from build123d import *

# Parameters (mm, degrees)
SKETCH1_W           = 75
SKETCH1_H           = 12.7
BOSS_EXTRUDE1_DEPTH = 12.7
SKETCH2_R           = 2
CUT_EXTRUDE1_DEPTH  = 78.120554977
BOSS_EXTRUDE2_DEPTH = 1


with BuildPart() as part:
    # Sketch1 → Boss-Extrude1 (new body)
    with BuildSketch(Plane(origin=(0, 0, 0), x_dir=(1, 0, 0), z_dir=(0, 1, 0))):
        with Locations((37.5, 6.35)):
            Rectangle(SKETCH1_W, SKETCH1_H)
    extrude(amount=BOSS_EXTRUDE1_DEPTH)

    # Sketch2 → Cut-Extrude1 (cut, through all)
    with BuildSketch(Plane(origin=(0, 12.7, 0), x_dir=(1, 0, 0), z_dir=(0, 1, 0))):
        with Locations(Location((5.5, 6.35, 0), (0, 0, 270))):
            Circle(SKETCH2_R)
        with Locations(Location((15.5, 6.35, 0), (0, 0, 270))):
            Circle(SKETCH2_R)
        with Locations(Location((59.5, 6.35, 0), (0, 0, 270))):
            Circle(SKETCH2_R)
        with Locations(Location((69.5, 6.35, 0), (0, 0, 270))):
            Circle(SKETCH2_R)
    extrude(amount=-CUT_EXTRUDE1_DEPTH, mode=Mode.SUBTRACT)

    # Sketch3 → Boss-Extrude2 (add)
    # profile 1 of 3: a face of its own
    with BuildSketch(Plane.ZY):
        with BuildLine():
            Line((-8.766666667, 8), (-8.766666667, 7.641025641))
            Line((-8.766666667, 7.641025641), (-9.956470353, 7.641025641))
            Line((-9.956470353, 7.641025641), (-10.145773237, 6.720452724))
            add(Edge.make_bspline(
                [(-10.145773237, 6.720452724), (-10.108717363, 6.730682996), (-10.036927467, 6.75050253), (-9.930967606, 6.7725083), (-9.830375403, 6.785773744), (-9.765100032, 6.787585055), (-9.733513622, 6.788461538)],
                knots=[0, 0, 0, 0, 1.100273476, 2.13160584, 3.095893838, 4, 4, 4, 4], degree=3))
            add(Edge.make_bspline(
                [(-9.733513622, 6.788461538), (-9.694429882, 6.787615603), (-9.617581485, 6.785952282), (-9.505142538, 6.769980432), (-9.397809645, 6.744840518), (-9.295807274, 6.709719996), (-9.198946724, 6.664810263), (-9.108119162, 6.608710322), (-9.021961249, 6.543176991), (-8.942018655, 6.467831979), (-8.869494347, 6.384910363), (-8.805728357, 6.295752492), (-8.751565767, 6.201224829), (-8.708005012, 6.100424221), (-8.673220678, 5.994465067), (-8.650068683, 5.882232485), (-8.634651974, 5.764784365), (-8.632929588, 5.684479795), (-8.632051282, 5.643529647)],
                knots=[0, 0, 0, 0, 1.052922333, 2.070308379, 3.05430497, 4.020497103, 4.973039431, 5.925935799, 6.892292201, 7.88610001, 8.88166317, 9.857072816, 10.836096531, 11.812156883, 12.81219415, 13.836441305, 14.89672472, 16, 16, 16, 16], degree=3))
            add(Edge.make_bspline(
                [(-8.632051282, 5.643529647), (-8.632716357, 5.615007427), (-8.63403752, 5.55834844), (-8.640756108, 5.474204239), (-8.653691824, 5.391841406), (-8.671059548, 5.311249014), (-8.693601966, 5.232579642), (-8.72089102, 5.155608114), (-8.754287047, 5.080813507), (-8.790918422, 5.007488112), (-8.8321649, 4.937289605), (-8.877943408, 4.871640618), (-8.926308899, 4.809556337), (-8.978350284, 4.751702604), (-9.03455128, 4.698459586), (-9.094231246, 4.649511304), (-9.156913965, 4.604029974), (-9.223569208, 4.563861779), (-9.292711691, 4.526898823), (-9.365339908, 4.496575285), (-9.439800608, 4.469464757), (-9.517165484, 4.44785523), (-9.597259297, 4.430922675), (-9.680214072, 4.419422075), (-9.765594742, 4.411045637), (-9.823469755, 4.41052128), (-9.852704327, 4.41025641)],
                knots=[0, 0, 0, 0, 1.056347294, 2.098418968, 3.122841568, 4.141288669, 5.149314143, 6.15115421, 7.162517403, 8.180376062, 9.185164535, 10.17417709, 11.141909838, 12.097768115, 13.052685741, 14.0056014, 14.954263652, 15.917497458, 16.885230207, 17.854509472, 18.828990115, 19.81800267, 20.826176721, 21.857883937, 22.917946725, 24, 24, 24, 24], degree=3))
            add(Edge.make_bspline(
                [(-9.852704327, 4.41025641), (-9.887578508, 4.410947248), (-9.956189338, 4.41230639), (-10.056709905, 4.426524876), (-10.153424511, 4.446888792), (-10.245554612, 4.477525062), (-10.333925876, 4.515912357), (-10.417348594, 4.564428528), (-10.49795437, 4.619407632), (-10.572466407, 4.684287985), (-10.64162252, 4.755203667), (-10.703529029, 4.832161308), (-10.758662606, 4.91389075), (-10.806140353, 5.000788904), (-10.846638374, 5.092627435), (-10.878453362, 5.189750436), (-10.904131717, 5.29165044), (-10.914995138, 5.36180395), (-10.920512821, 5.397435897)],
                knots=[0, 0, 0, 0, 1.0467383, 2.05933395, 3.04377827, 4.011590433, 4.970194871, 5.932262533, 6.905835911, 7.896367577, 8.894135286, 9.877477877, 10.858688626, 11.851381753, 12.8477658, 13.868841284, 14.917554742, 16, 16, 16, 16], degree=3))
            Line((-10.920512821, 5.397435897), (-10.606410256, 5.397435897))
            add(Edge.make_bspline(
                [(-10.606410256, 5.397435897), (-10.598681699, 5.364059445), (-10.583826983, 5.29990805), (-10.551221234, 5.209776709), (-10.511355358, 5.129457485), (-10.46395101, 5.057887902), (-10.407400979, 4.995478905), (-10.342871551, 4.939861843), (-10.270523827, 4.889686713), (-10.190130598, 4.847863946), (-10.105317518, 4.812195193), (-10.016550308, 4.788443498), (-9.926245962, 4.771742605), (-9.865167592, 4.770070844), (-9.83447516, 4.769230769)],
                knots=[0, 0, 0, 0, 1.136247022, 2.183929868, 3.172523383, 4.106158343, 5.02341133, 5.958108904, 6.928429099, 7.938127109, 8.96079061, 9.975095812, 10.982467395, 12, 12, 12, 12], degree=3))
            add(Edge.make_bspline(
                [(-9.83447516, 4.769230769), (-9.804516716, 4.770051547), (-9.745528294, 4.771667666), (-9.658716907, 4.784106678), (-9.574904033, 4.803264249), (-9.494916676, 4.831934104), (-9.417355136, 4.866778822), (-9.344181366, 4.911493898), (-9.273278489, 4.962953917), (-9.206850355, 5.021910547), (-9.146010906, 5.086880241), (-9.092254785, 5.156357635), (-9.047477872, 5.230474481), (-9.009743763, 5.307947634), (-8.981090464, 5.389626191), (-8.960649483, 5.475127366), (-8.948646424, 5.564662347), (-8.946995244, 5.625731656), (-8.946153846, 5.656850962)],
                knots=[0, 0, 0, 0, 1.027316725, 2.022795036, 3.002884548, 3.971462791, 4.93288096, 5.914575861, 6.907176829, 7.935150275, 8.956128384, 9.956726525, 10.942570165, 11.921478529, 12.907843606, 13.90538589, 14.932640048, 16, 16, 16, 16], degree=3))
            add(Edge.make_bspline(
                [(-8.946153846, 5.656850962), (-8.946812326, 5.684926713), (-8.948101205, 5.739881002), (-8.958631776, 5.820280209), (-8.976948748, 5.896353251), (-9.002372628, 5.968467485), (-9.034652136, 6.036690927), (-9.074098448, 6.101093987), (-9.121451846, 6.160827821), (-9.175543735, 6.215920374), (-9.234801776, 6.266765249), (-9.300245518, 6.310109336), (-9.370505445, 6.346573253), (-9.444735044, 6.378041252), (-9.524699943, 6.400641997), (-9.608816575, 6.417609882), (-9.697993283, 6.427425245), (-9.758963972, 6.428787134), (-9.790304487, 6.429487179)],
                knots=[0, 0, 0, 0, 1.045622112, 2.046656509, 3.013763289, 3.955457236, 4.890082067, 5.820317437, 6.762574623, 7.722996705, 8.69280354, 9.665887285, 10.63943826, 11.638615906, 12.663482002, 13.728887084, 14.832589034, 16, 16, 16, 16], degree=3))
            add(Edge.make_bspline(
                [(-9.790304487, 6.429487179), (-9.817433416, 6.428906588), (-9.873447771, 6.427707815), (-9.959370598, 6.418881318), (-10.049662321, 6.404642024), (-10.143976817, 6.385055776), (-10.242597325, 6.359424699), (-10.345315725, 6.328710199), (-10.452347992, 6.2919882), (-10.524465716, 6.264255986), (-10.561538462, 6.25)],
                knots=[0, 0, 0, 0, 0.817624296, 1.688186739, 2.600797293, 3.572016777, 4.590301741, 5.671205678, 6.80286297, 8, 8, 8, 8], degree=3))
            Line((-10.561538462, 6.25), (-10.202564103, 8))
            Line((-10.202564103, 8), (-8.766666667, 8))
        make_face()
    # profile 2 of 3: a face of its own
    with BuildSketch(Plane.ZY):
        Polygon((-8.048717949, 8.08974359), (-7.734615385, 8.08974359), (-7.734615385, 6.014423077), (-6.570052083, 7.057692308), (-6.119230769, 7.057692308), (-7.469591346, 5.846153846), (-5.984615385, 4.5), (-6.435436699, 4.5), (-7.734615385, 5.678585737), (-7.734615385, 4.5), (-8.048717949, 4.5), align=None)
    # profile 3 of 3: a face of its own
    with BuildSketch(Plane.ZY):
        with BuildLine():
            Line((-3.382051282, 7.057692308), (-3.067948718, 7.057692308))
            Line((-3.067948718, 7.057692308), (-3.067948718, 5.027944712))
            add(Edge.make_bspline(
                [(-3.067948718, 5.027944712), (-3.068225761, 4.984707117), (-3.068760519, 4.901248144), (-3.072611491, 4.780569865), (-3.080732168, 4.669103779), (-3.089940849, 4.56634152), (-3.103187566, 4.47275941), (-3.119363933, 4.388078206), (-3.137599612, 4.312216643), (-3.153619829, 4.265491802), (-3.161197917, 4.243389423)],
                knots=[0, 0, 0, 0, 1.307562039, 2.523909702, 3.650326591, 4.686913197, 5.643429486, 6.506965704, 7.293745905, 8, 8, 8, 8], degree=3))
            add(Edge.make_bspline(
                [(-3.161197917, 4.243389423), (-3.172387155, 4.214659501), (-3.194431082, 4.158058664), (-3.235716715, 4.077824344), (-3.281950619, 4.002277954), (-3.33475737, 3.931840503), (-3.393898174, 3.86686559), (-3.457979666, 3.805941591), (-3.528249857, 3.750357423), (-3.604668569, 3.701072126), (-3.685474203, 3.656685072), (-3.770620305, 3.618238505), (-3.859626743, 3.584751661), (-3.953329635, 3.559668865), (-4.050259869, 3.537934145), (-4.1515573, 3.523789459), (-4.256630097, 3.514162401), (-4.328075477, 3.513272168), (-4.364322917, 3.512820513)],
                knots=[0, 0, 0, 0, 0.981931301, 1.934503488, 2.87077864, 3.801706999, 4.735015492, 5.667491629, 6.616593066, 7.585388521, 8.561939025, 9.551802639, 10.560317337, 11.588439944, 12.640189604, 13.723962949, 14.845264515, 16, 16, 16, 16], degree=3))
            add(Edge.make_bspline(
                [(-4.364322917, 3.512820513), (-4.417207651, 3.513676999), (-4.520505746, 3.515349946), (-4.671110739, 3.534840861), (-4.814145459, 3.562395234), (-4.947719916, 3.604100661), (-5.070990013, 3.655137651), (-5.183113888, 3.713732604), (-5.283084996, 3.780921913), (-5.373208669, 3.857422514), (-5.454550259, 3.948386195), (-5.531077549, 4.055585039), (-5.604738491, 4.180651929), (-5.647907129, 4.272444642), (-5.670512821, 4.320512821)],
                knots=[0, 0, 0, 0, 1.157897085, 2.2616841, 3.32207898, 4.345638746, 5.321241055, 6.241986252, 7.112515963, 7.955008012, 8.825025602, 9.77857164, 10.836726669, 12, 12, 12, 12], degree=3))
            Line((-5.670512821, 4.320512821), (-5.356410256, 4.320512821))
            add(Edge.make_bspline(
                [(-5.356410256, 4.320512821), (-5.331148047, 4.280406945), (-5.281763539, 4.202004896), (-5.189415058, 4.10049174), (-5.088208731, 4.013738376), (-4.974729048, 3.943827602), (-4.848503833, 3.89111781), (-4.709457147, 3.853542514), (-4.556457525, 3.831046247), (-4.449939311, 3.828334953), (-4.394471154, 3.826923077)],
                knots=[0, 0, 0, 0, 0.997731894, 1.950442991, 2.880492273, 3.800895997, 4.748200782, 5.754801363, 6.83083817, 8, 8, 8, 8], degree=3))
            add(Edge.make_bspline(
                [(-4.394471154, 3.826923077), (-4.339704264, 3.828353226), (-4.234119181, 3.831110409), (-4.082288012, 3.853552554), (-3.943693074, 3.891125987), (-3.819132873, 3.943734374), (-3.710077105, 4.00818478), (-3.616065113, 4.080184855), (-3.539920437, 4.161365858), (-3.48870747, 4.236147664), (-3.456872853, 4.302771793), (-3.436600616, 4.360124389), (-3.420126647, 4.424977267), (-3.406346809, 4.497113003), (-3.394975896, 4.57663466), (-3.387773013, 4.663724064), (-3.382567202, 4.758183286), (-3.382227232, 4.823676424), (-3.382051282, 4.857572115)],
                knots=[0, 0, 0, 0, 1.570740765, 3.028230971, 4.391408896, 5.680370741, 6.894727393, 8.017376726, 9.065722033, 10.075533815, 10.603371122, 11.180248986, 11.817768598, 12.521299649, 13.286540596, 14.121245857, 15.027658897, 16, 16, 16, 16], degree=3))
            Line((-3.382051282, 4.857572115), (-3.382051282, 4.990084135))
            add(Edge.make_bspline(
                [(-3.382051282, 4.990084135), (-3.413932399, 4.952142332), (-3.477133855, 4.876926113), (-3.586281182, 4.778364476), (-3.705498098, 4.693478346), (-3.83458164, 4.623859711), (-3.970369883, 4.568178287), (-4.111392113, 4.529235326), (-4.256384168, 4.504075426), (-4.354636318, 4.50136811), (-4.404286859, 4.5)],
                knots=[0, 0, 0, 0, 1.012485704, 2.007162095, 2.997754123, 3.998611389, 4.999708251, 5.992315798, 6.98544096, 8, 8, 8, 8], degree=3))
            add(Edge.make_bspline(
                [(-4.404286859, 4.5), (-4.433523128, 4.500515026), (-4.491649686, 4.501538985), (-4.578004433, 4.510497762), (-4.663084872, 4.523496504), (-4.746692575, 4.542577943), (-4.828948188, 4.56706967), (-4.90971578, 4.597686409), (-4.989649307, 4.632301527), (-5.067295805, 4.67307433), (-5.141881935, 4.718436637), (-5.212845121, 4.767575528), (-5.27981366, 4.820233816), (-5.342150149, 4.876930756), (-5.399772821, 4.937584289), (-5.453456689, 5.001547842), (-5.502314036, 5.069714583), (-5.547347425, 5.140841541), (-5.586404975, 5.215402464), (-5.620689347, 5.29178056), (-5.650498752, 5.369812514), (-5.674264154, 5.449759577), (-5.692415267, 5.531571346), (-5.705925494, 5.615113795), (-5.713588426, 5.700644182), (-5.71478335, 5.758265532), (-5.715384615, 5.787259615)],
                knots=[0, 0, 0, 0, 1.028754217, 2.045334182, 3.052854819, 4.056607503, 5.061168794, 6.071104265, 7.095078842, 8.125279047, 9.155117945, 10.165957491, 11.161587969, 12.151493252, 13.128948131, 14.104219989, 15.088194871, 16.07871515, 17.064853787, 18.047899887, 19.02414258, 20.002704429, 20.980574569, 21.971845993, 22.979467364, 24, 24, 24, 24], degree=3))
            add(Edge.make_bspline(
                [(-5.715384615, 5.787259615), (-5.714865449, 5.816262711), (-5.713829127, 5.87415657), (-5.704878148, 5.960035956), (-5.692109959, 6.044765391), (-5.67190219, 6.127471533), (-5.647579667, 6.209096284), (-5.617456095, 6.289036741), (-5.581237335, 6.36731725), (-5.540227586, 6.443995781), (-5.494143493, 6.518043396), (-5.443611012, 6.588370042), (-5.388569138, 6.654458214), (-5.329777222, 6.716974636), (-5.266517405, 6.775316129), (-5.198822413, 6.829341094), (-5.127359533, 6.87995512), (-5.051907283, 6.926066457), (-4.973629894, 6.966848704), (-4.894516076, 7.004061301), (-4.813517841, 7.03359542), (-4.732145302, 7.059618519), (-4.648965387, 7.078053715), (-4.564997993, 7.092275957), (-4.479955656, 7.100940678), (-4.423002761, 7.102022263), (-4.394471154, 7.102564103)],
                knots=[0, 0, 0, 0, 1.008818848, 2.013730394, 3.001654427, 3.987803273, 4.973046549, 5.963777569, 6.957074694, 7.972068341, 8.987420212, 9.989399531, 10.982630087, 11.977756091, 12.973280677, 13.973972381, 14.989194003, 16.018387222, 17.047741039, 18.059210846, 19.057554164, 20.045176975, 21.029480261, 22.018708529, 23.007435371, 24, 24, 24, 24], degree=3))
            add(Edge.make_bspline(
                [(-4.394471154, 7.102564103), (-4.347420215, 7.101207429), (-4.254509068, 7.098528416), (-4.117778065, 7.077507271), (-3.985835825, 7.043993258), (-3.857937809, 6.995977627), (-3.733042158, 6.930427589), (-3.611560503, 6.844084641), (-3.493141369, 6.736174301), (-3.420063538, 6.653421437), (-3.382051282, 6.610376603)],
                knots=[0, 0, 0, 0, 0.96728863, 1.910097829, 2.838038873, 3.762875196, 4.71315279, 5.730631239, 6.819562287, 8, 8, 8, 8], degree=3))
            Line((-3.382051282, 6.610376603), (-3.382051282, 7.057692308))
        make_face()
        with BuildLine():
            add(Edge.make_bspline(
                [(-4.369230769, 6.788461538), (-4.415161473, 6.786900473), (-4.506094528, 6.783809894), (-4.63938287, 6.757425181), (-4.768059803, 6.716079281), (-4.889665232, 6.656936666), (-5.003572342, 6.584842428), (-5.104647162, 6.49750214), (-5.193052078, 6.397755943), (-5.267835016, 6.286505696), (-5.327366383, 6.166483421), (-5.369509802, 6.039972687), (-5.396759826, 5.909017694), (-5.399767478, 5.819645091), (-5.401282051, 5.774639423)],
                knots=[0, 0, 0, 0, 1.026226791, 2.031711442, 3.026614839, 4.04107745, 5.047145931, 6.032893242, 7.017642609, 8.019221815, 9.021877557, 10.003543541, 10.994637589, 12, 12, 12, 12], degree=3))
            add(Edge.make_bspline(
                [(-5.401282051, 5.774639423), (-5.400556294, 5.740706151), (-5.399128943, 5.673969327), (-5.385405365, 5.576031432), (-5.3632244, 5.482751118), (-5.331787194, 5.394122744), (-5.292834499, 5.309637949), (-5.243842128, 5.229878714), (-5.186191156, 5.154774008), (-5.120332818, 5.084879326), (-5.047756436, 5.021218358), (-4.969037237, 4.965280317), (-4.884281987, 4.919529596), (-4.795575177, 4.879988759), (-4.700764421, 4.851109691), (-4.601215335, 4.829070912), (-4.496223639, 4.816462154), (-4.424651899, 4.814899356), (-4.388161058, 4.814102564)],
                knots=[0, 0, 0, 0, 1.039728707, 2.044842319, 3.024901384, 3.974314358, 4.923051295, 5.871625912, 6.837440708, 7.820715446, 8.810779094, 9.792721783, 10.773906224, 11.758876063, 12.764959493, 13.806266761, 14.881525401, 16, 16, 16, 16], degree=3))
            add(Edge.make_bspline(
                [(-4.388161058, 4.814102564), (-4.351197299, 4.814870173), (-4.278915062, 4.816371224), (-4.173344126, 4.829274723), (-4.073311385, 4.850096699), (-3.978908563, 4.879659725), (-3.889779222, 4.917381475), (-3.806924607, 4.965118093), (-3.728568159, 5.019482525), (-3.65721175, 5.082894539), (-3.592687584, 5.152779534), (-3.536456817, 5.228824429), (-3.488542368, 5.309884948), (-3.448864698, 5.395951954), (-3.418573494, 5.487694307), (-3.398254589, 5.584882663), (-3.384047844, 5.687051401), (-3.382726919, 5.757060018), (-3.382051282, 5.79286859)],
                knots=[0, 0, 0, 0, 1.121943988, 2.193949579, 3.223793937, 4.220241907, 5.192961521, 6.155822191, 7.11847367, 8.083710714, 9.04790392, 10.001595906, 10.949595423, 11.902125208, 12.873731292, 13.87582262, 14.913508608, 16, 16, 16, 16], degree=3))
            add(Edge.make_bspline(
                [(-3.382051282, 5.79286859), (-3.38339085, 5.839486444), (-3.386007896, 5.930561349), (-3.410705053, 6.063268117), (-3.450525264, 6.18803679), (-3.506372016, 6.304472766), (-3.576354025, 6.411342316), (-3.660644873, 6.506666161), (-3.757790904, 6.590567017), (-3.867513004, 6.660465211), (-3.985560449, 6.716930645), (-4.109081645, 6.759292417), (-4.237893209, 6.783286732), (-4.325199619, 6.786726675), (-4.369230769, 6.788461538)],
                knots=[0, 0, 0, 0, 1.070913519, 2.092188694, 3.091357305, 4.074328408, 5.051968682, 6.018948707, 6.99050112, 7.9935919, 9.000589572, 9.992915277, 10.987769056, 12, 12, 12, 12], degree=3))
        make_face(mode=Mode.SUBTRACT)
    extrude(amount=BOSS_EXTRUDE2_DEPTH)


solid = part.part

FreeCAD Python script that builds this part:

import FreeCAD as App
import Part
import Sketcher
Q = App.Units.Quantity

doc = App.newDocument("Part")
body = doc.addObject("PartDesign::Body", "Body")

# Sketch on XZ plane
sketch1 = doc.addObject("Sketcher::SketchObject", "Sketch")
body.addObject(sketch1)
sketch1.AttachmentSupport = (doc.XZ_Plane, [""])
sketch1.MapMode = "FlatFace"
sketch1.addGeometry(Part.LineSegment(App.Vector(0, -13, 0), App.Vector(0, 0, 0)), False)
sketch1.addGeometry(Part.LineSegment(App.Vector(0, 0, 0), App.Vector(75, 0, 0)), False)
sketch1.addGeometry(Part.LineSegment(App.Vector(75, 0, 0), App.Vector(75, -13, 0)), False)
sketch1.addGeometry(Part.LineSegment(App.Vector(75, -13, 0), App.Vector(0, -13, 0)), False)
sketch1.addConstraint(Sketcher.Constraint("Coincident", 0, 2, 1, 1))
sketch1.addConstraint(Sketcher.Constraint("Coincident", 1, 2, 2, 1))
sketch1.addConstraint(Sketcher.Constraint("Coincident", 2, 2, 3, 1))
sketch1.addConstraint(Sketcher.Constraint("Coincident", 3, 2, 0, 1))
sketch1.addConstraint(Sketcher.Constraint("Vertical", 0))
sketch1.addConstraint(Sketcher.Constraint("Horizontal", 1))
sketch1.addConstraint(Sketcher.Constraint("Vertical", 2))
sketch1.addConstraint(Sketcher.Constraint("Horizontal", 3))
sketch1.addConstraint(Sketcher.Constraint("Coincident", 0, 2, -1, 1))
sketch1.addConstraint(Sketcher.Constraint("DistanceX", 1, 1, 1, 2, Q("75 mm")))
sketch1.addConstraint(Sketcher.Constraint("DistanceY", 0, 1, 0, 2, Q("12.7 mm")))
pad1 = doc.addObject("PartDesign::Pad", "Pad")
body.addObject(pad1)
pad1.Profile = sketch1
pad1.Length = 12.7
pad1.Reversed = True

# Sketch on XZ plane
sketch2 = doc.addObject("Sketcher::SketchObject", "Sketch001")
body.addObject(sketch2)
sketch2.AttachmentSupport = (doc.XZ_Plane, [""])
sketch2.MapMode = "FlatFace"
sketch2.AttachmentOffset = App.Placement(App.Vector(0, 0, -12.7), App.Rotation())
sketch2.addGeometry(Part.Circle(App.Vector(5.5, -6.3, 0), App.Vector(0, 0, 1), 2), False)
sketch2.addGeometry(Part.Circle(App.Vector(15.5, -6.3, 0), App.Vector(0, 0, 1), 2), False)
sketch2.addGeometry(Part.Circle(App.Vector(59.5, -6.3, 0), App.Vector(0, 0, 1), 2), False)
sketch2.addGeometry(Part.Circle(App.Vector(69.5, -6.3, 0), App.Vector(0, 0, 1), 2), False)
sketch2.addConstraint(Sketcher.Constraint("Equal", 0, 1))
sketch2.addConstraint(Sketcher.Constraint("Equal", 1, 2))
sketch2.addConstraint(Sketcher.Constraint("Equal", 2, 3))
sketch2.addConstraint(Sketcher.Constraint("Horizontal", 0, 3, 1, 3))
sketch2.addConstraint(Sketcher.Constraint("Horizontal", 1, 3, 2, 3))
sketch2.addConstraint(Sketcher.Constraint("Horizontal", 2, 3, 3, 3))
sketch2.addConstraint(Sketcher.Constraint("Diameter", 0, Q("4 mm")))
sketch2.addConstraint(Sketcher.Constraint("DistanceX", 0, 3, 1, 3, Q("10 mm")))
sketch2.addConstraint(Sketcher.Constraint("DistanceX", 1, 3, 2, 3, Q("44 mm")))
sketch2.addConstraint(Sketcher.Constraint("DistanceX", 2, 3, 3, 3, Q("10 mm")))
sketch2.addConstraint(Sketcher.Constraint("DistanceX", -1, 1, 0, 3, Q("5.5 mm")))
sketch2.addConstraint(Sketcher.Constraint("DistanceY", 0, 3, -1, 1, Q("6.35 mm")))
pocket1 = doc.addObject("PartDesign::Pocket", "Pocket")
body.addObject(pocket1)
pocket1.Profile = sketch2
pocket1.Type = "ThroughAll"
pocket1.Reversed = True

# Sketch on YZ plane
sketch3 = doc.addObject("Sketcher::SketchObject", "Sketch002")
body.addObject(sketch3)
sketch3.AttachmentSupport = (doc.YZ_Plane, [""])
sketch3.MapMode = "FlatFace"
sketch3.addGeometry(Part.LineSegment(App.Vector(7.641026, -8.766667, 0), App.Vector(8, -8.766667, 0)), False)
sketch3.addGeometry(Part.LineSegment(App.Vector(8, -8.766667, 0), App.Vector(8, -10.202564, 0)), False)
sketch3.addGeometry(Part.LineSegment(App.Vector(8, -10.202564, 0), App.Vector(6.25, -10.561538, 0)), False)
sketch3.addGeometry(Part.BSplineCurve([App.Vector(6.429487, -9.790304, 0), App.Vector(6.428907, -9.817433, 0), App.Vector(6.427708, -9.873448, 0), App.Vector(6.418881, -9.959371, 0), App.Vector(6.404642, -10.049662, 0), App.Vector(6.385056, -10.143977, 0), App.Vector(6.359425, -10.242597, 0), App.Vector(6.32871, -10.345316, 0), App.Vector(6.291988, -10.452348, 0), App.Vector(6.264256, -10.524466, 0), App.Vector(6.25, -10.561538, 0)], [4, 1, 1, 1, 1, 1, 1, 1, 4], [0, 0.817624296, 1.688186739, 2.600797293, 3.572016777, 4.590301741, 5.671205678, 6.80286297, 8], False, 3, [1, 1, 1, 1, 1, 1, 1, 1, 1, 1, 1], False), False)
sketch3.addGeometry(Part.BSplineCurve([App.Vector(5.656851, -8.946154, 0), App.Vector(5.684927, -8.946812, 0), App.Vector(5.739881, -8.948101, 0), App.Vector(5.82028, -8.958632, 0), App.Vector(5.896353, -8.976949, 0), App.Vector(5.968467, -9.002373, 0), App.Vector(6.036691, -9.034652, 0), App.Vector(6.101094, -9.074098, 0), App.Vector(6.160828, -9.121452, 0), App.Vector(6.21592, -9.175544, 0), App.Vector(6.266765, -9.234802, 0), App.Vector(6.310109, -9.300246, 0), App.Vector(6.346573, -9.370505, 0), App.Vector(6.378041, -9.444735, 0), App.Vector(6.400642, -9.5247, 0), App.Vector(6.41761, -9.608817, 0), App.Vector(6.427425, -9.697993, 0), App.Vector(6.428787, -9.758964, 0), App.Vector(6.429487, -9.790304, 0)], [4, 1, 1, 1, 1, 1, 1, 1, 1, 1, 1, 1, 1, 1, 1, 1, 4], [0, 1.045622112, 2.046656509, 3.013763289, 3.955457236, 4.890082067, 5.820317437, 6.762574623, 7.722996705, 8.69280354, 9.665887285, 10.63943826, 11.638615906, 12.663482002, 13.728887084, 14.832589034, 16], False, 3, [1, 1, 1, 1, 1, 1, 1, 1, 1, 1, 1, 1, 1, 1, 1, 1, 1, 1, 1], False), False)
sketch3.addGeometry(Part.BSplineCurve([App.Vector(4.769231, -9.834475, 0), App.Vector(4.770052, -9.804517, 0), App.Vector(4.771668, -9.745528, 0), App.Vector(4.784107, -9.658717, 0), App.Vector(4.803264, -9.574904, 0), App.Vector(4.831934, -9.494917, 0), App.Vector(4.866779, -9.417355, 0), App.Vector(4.911494, -9.344181, 0), App.Vector(4.962954, -9.273278, 0), App.Vector(5.021911, -9.20685, 0), App.Vector(5.08688, -9.146011, 0), App.Vector(5.156358, -9.092255, 0), App.Vector(5.230474, -9.047478, 0), App.Vector(5.307948, -9.009744, 0), App.Vector(5.389626, -8.98109, 0), App.Vector(5.475127, -8.960649, 0), App.Vector(5.564662, -8.948646, 0), App.Vector(5.625732, -8.946995, 0), App.Vector(5.656851, -8.946154, 0)], [4, 1, 1, 1, 1, 1, 1, 1, 1, 1, 1, 1, 1, 1, 1, 1, 4], [0, 1.027316725, 2.022795036, 3.002884548, 3.971462791, 4.93288096, 5.914575861, 6.907176829, 7.935150275, 8.956128384, 9.956726525, 10.942570165, 11.921478529, 12.907843606, 13.90538589, 14.932640048, 16], False, 3, [1, 1, 1, 1, 1, 1, 1, 1, 1, 1, 1, 1, 1, 1, 1, 1, 1, 1, 1], False), False)
sketch3.addGeometry(Part.BSplineCurve([App.Vector(5.397436, -10.60641, 0), App.Vector(5.364059, -10.598682, 0), App.Vector(5.299908, -10.583827, 0), App.Vector(5.209777, -10.551221, 0), App.Vector(5.129457, -10.511355, 0), App.Vector(5.057888, -10.463951, 0), App.Vector(4.995479, -10.407401, 0), App.Vector(4.939862, -10.342872, 0), App.Vector(4.889687, -10.270524, 0), App.Vector(4.847864, -10.190131, 0), App.Vector(4.812195, -10.105318, 0), App.Vector(4.788443, -10.01655, 0), App.Vector(4.771743, -9.926246, 0), App.Vector(4.770071, -9.865168, 0), App.Vector(4.769231, -9.834475, 0)], [4, 1, 1, 1, 1, 1, 1, 1, 1, 1, 1, 1, 4], [0, 1.136247022, 2.183929868, 3.172523383, 4.106158343, 5.02341133, 5.958108904, 6.928429099, 7.938127109, 8.96079061, 9.975095812, 10.982467395, 12], False, 3, [1, 1, 1, 1, 1, 1, 1, 1, 1, 1, 1, 1, 1, 1, 1], False), False)
sketch3.addGeometry(Part.LineSegment(App.Vector(5.397436, -10.60641, 0), App.Vector(5.397436, -10.920513, 0)), False)
sketch3.addGeometry(Part.BSplineCurve([App.Vector(4.410256, -9.852704, 0), App.Vector(4.410947, -9.887579, 0), App.Vector(4.412306, -9.956189, 0), App.Vector(4.426525, -10.05671, 0), App.Vector(4.446889, -10.153425, 0), App.Vector(4.477525, -10.245555, 0), App.Vector(4.515912, -10.333926, 0), App.Vector(4.564429, -10.417349, 0), App.Vector(4.619408, -10.497954, 0), App.Vector(4.684288, -10.572466, 0), App.Vector(4.755204, -10.641623, 0), App.Vector(4.832161, -10.703529, 0), App.Vector(4.913891, -10.758663, 0), App.Vector(5.000789, -10.80614, 0), App.Vector(5.092627, -10.846638, 0), App.Vector(5.18975, -10.878453, 0), App.Vector(5.29165, -10.904132, 0), App.Vector(5.361804, -10.914995, 0), App.Vector(5.397436, -10.920513, 0)], [4, 1, 1, 1, 1, 1, 1, 1, 1, 1, 1, 1, 1, 1, 1, 1, 4], [0, 1.0467383, 2.05933395, 3.04377827, 4.011590433, 4.970194871, 5.932262533, 6.905835911, 7.896367577, 8.894135286, 9.877477877, 10.858688626, 11.851381753, 12.8477658, 13.868841284, 14.917554742, 16], False, 3, [1, 1, 1, 1, 1, 1, 1, 1, 1, 1, 1, 1, 1, 1, 1, 1, 1, 1, 1], False), False)
sketch3.addGeometry(Part.BSplineCurve([App.Vector(5.64353, -8.632051, 0), App.Vector(5.615007, -8.632716, 0), App.Vector(5.558348, -8.634038, 0), App.Vector(5.474204, -8.640756, 0), App.Vector(5.391841, -8.653692, 0), App.Vector(5.311249, -8.67106, 0), App.Vector(5.23258, -8.693602, 0), App.Vector(5.155608, -8.720891, 0), App.Vector(5.080814, -8.754287, 0), App.Vector(5.007488, -8.790918, 0), App.Vector(4.93729, -8.832165, 0), App.Vector(4.871641, -8.877943, 0), App.Vector(4.809556, -8.926309, 0), App.Vector(4.751703, -8.97835, 0), App.Vector(4.69846, -9.034551, 0), App.Vector(4.649511, -9.094231, 0), App.Vector(4.60403, -9.156914, 0), App.Vector(4.563862, -9.223569, 0), App.Vector(4.526899, -9.292712, 0), App.Vector(4.496575, -9.36534, 0), App.Vector(4.469465, -9.439801, 0), App.Vector(4.447855, -9.517165, 0), App.Vector(4.430923, -9.597259, 0), App.Vector(4.419422, -9.680214, 0), App.Vector(4.411046, -9.765595, 0), App.Vector(4.410521, -9.82347, 0), App.Vector(4.410256, -9.852704, 0)], [4, 1, 1, 1, 1, 1, 1, 1, 1, 1, 1, 1, 1, 1, 1, 1, 1, 1, 1, 1, 1, 1, 1, 1, 4], [0, 1.056347294, 2.098418968, 3.122841568, 4.141288669, 5.149314143, 6.15115421, 7.162517403, 8.180376062, 9.185164535, 10.17417709, 11.141909838, 12.097768115, 13.052685741, 14.0056014, 14.954263652, 15.917497458, 16.885230207, 17.854509472, 18.828990115, 19.81800267, 20.826176721, 21.857883937, 22.917946725, 24], False, 3, [1, 1, 1, 1, 1, 1, 1, 1, 1, 1, 1, 1, 1, 1, 1, 1, 1, 1, 1, 1, 1, 1, 1, 1, 1, 1, 1], False), False)
sketch3.addGeometry(Part.BSplineCurve([App.Vector(6.788462, -9.733514, 0), App.Vector(6.787616, -9.69443, 0), App.Vector(6.785952, -9.617581, 0), App.Vector(6.76998, -9.505143, 0), App.Vector(6.744841, -9.39781, 0), App.Vector(6.70972, -9.295807, 0), App.Vector(6.66481, -9.198947, 0), App.Vector(6.60871, -9.108119, 0), App.Vector(6.543177, -9.021961, 0), App.Vector(6.467832, -8.942019, 0), App.Vector(6.38491, -8.869494, 0), App.Vector(6.295752, -8.805728, 0), App.Vector(6.201225, -8.751566, 0), App.Vector(6.100424, -8.708005, 0), App.Vector(5.994465, -8.673221, 0), App.Vector(5.882232, -8.650069, 0), App.Vector(5.764784, -8.634652, 0), App.Vector(5.68448, -8.63293, 0), App.Vector(5.64353, -8.632051, 0)], [4, 1, 1, 1, 1, 1, 1, 1, 1, 1, 1, 1, 1, 1, 1, 1, 4], [0, 1.052922333, 2.070308379, 3.05430497, 4.020497103, 4.973039431, 5.925935799, 6.892292201, 7.88610001, 8.88166317, 9.857072816, 10.836096531, 11.812156883, 12.81219415, 13.836441305, 14.89672472, 16], False, 3, [1, 1, 1, 1, 1, 1, 1, 1, 1, 1, 1, 1, 1, 1, 1, 1, 1, 1, 1], False), False)
sketch3.addGeometry(Part.BSplineCurve([App.Vector(6.720453, -10.145773, 0), App.Vector(6.730683, -10.108717, 0), App.Vector(6.750503, -10.036927, 0), App.Vector(6.772508, -9.930968, 0), App.Vector(6.785774, -9.830375, 0), App.Vector(6.787585, -9.7651, 0), App.Vector(6.788462, -9.733514, 0)], [4, 1, 1, 1, 4], [0, 1.100273476, 2.13160584, 3.095893838, 4], False, 3, [1, 1, 1, 1, 1, 1, 1], False), False)
sketch3.addGeometry(Part.LineSegment(App.Vector(6.720453, -10.145773, 0), App.Vector(7.641026, -9.95647, 0)), False)
sketch3.addGeometry(Part.LineSegment(App.Vector(7.641026, -9.95647, 0), App.Vector(7.641026, -8.766667, 0)), False)
sketch3.addGeometry(Part.LineSegment(App.Vector(8.089744, -7.734615, 0), App.Vector(8.089744, -8.048718, 0)), False)
sketch3.addGeometry(Part.LineSegment(App.Vector(8.089744, -8.048718, 0), App.Vector(4.5, -8.048718, 0)), False)
sketch3.addGeometry(Part.LineSegment(App.Vector(4.5, -8.048718, 0), App.Vector(4.5, -7.734615, 0)), False)
sketch3.addGeometry(Part.LineSegment(App.Vector(4.5, -7.734615, 0), App.Vector(5.678586, -7.734615, 0)), False)
sketch3.addGeometry(Part.LineSegment(App.Vector(5.678586, -7.734615, 0), App.Vector(4.5, -6.435437, 0)), False)
sketch3.addGeometry(Part.LineSegment(App.Vector(4.5, -6.435437, 0), App.Vector(4.5, -5.984615, 0)), False)
sketch3.addGeometry(Part.LineSegment(App.Vector(4.5, -5.984615, 0), App.Vector(5.846154, -7.469591, 0)), False)
sketch3.addGeometry(Part.LineSegment(App.Vector(5.846154, -7.469591, 0), App.Vector(7.057692, -6.119231, 0)), False)
sketch3.addGeometry(Part.LineSegment(App.Vector(7.057692, -6.119231, 0), App.Vector(7.057692, -6.570052, 0)), False)
sketch3.addGeometry(Part.LineSegment(App.Vector(7.057692, -6.570052, 0), App.Vector(6.014423, -7.734615, 0)), False)
sketch3.addGeometry(Part.LineSegment(App.Vector(6.014423, -7.734615, 0), App.Vector(8.089744, -7.734615, 0)), False)
sketch3.addGeometry(Part.LineSegment(App.Vector(7.057692, -3.067949, 0), App.Vector(7.057692, -3.382051, 0)), False)
sketch3.addGeometry(Part.LineSegment(App.Vector(7.057692, -3.382051, 0), App.Vector(6.610377, -3.382051, 0)), False)
sketch3.addGeometry(Part.BSplineCurve([App.Vector(7.102564, -4.394471, 0), App.Vector(7.101207, -4.34742, 0), App.Vector(7.098528, -4.254509, 0), App.Vector(7.077507, -4.117778, 0), App.Vector(7.043993, -3.985836, 0), App.Vector(6.995978, -3.857938, 0), App.Vector(6.930428, -3.733042, 0), App.Vector(6.844085, -3.611561, 0), App.Vector(6.736174, -3.493141, 0), App.Vector(6.653421, -3.420064, 0), App.Vector(6.610377, -3.382051, 0)], [4, 1, 1, 1, 1, 1, 1, 1, 4], [0, 0.96728863, 1.910097829, 2.838038873, 3.762875196, 4.71315279, 5.730631239, 6.819562287, 8], False, 3, [1, 1, 1, 1, 1, 1, 1, 1, 1, 1, 1], False), False)
sketch3.addGeometry(Part.BSplineCurve([App.Vector(5.78726, -5.715385, 0), App.Vector(5.816263, -5.714865, 0), App.Vector(5.874157, -5.713829, 0), App.Vector(5.960036, -5.704878, 0), App.Vector(6.044765, -5.69211, 0), App.Vector(6.127472, -5.671902, 0), App.Vector(6.209096, -5.64758, 0), App.Vector(6.289037, -5.617456, 0), App.Vector(6.367317, -5.581237, 0), App.Vector(6.443996, -5.540228, 0), App.Vector(6.518043, -5.494143, 0), App.Vector(6.58837, -5.443611, 0), App.Vector(6.654458, -5.388569, 0), App.Vector(6.716975, -5.329777, 0), App.Vector(6.775316, -5.266517, 0), App.Vector(6.829341, -5.198822, 0), App.Vector(6.879955, -5.12736, 0), App.Vector(6.926066, -5.051907, 0), App.Vector(6.966849, -4.97363, 0), App.Vector(7.004061, -4.894516, 0), App.Vector(7.033595, -4.813518, 0), App.Vector(7.059619, -4.732145, 0), App.Vector(7.078054, -4.648965, 0), App.Vector(7.092276, -4.564998, 0), App.Vector(7.100941, -4.479956, 0), App.Vector(7.102022, -4.423003, 0), App.Vector(7.102564, -4.394471, 0)], [4, 1, 1, 1, 1, 1, 1, 1, 1, 1, 1, 1, 1, 1, 1, 1, 1, 1, 1, 1, 1, 1, 1, 1, 4], [0, 1.008818848, 2.013730394, 3.001654427, 3.987803273, 4.973046549, 5.963777569, 6.957074694, 7.972068341, 8.987420212, 9.989399531, 10.982630087, 11.977756091, 12.973280677, 13.973972381, 14.989194003, 16.018387222, 17.047741039, 18.059210846, 19.057554164, 20.045176975, 21.029480261, 22.018708529, 23.007435371, 24], False, 3, [1, 1, 1, 1, 1, 1, 1, 1, 1, 1, 1, 1, 1, 1, 1, 1, 1, 1, 1, 1, 1, 1, 1, 1, 1, 1, 1], False), False)
sketch3.addGeometry(Part.BSplineCurve([App.Vector(4.5, -4.404287, 0), App.Vector(4.500515, -4.433523, 0), App.Vector(4.501539, -4.49165, 0), App.Vector(4.510498, -4.578004, 0), App.Vector(4.523497, -4.663085, 0), App.Vector(4.542578, -4.746693, 0), App.Vector(4.56707, -4.828948, 0), App.Vector(4.597686, -4.909716, 0), App.Vector(4.632302, -4.989649, 0), App.Vector(4.673074, -5.067296, 0), App.Vector(4.718437, -5.141882, 0), App.Vector(4.767576, -5.212845, 0), App.Vector(4.820234, -5.279814, 0), App.Vector(4.876931, -5.34215, 0), App.Vector(4.937584, -5.399773, 0), App.Vector(5.001548, -5.453457, 0), App.Vector(5.069715, -5.502314, 0), App.Vector(5.140842, -5.547347, 0), App.Vector(5.215402, -5.586405, 0), App.Vector(5.291781, -5.620689, 0), App.Vector(5.369813, -5.650499, 0), App.Vector(5.44976, -5.674264, 0), App.Vector(5.531571, -5.692415, 0), App.Vector(5.615114, -5.705925, 0), App.Vector(5.700644, -5.713588, 0), App.Vector(5.758266, -5.714783, 0), App.Vector(5.78726, -5.715385, 0)], [4, 1, 1, 1, 1, 1, 1, 1, 1, 1, 1, 1, 1, 1, 1, 1, 1, 1, 1, 1, 1, 1, 1, 1, 4], [0, 1.028754217, 2.045334182, 3.052854819, 4.056607503, 5.061168794, 6.071104265, 7.095078842, 8.125279047, 9.155117945, 10.165957491, 11.161587969, 12.151493252, 13.128948131, 14.104219989, 15.088194871, 16.07871515, 17.064853787, 18.047899887, 19.02414258, 20.002704429, 20.980574569, 21.971845993, 22.979467364, 24], False, 3, [1, 1, 1, 1, 1, 1, 1, 1, 1, 1, 1, 1, 1, 1, 1, 1, 1, 1, 1, 1, 1, 1, 1, 1, 1, 1, 1], False), False)
sketch3.addGeometry(Part.BSplineCurve([App.Vector(4.990084, -3.382051, 0), App.Vector(4.952142, -3.413932, 0), App.Vector(4.876926, -3.477134, 0), App.Vector(4.778364, -3.586281, 0), App.Vector(4.693478, -3.705498, 0), App.Vector(4.62386, -3.834582, 0), App.Vector(4.568178, -3.97037, 0), App.Vector(4.529235, -4.111392, 0), App.Vector(4.504075, -4.256384, 0), App.Vector(4.501368, -4.354636, 0), App.Vector(4.5, -4.404287, 0)], [4, 1, 1, 1, 1, 1, 1, 1, 4], [0, 1.012485704, 2.007162095, 2.997754123, 3.998611389, 4.999708251, 5.992315798, 6.98544096, 8], False, 3, [1, 1, 1, 1, 1, 1, 1, 1, 1, 1, 1], False), False)
sketch3.addGeometry(Part.LineSegment(App.Vector(4.990084, -3.382051, 0), App.Vector(4.857572, -3.382051, 0)), False)
sketch3.addGeometry(Part.BSplineCurve([App.Vector(3.826923, -4.394471, 0), App.Vector(3.828353, -4.339704, 0), App.Vector(3.83111, -4.234119, 0), App.Vector(3.853553, -4.082288, 0), App.Vector(3.891126, -3.943693, 0), App.Vector(3.943734, -3.819133, 0), App.Vector(4.008185, -3.710077, 0), App.Vector(4.080185, -3.616065, 0), App.Vector(4.161366, -3.53992, 0), App.Vector(4.236148, -3.488707, 0), App.Vector(4.302772, -3.456873, 0), App.Vector(4.360124, -3.436601, 0), App.Vector(4.424977, -3.420127, 0), App.Vector(4.497113, -3.406347, 0), App.Vector(4.576635, -3.394976, 0), App.Vector(4.663724, -3.387773, 0), App.Vector(4.758183, -3.382567, 0), App.Vector(4.823676, -3.382227, 0), App.Vector(4.857572, -3.382051, 0)], [4, 1, 1, 1, 1, 1, 1, 1, 1, 1, 1, 1, 1, 1, 1, 1, 4], [0, 1.570740765, 3.028230971, 4.391408896, 5.680370741, 6.894727393, 8.017376726, 9.065722033, 10.075533815, 10.603371122, 11.180248986, 11.817768598, 12.521299649, 13.286540596, 14.121245857, 15.027658897, 16], False, 3, [1, 1, 1, 1, 1, 1, 1, 1, 1, 1, 1, 1, 1, 1, 1, 1, 1, 1, 1], False), False)
sketch3.addGeometry(Part.BSplineCurve([App.Vector(4.320513, -5.35641, 0), App.Vector(4.280407, -5.331148, 0), App.Vector(4.202005, -5.281764, 0), App.Vector(4.100492, -5.189415, 0), App.Vector(4.013738, -5.088209, 0), App.Vector(3.943828, -4.974729, 0), App.Vector(3.891118, -4.848504, 0), App.Vector(3.853543, -4.709457, 0), App.Vector(3.831046, -4.556458, 0), App.Vector(3.828335, -4.449939, 0), App.Vector(3.826923, -4.394471, 0)], [4, 1, 1, 1, 1, 1, 1, 1, 4], [0, 0.997731894, 1.950442991, 2.880492273, 3.800895997, 4.748200782, 5.754801363, 6.83083817, 8], False, 3, [1, 1, 1, 1, 1, 1, 1, 1, 1, 1, 1], False), False)
sketch3.addGeometry(Part.LineSegment(App.Vector(4.320513, -5.35641, 0), App.Vector(4.320513, -5.670513, 0)), False)
sketch3.addGeometry(Part.BSplineCurve([App.Vector(3.512821, -4.364323, 0), App.Vector(3.513677, -4.417208, 0), App.Vector(3.51535, -4.520506, 0), App.Vector(3.534841, -4.671111, 0), App.Vector(3.562395, -4.814145, 0), App.Vector(3.604101, -4.94772, 0), App.Vector(3.655138, -5.07099, 0), App.Vector(3.713733, -5.183114, 0), App.Vector(3.780922, -5.283085, 0), App.Vector(3.857423, -5.373209, 0), App.Vector(3.948386, -5.45455, 0), App.Vector(4.055585, -5.531078, 0), App.Vector(4.180652, -5.604738, 0), App.Vector(4.272445, -5.647907, 0), App.Vector(4.320513, -5.670513, 0)], [4, 1, 1, 1, 1, 1, 1, 1, 1, 1, 1, 1, 4], [0, 1.157897085, 2.2616841, 3.32207898, 4.345638746, 5.321241055, 6.241986252, 7.112515963, 7.955008012, 8.825025602, 9.77857164, 10.836726669, 12], False, 3, [1, 1, 1, 1, 1, 1, 1, 1, 1, 1, 1, 1, 1, 1, 1], False), False)
sketch3.addGeometry(Part.BSplineCurve([App.Vector(4.243389, -3.161198, 0), App.Vector(4.21466, -3.172387, 0), App.Vector(4.158059, -3.194431, 0), App.Vector(4.077824, -3.235717, 0), App.Vector(4.002278, -3.281951, 0), App.Vector(3.931841, -3.334757, 0), App.Vector(3.866866, -3.393898, 0), App.Vector(3.805942, -3.45798, 0), App.Vector(3.750357, -3.52825, 0), App.Vector(3.701072, -3.604669, 0), App.Vector(3.656685, -3.685474, 0), App.Vector(3.618239, -3.77062, 0), App.Vector(3.584752, -3.859627, 0), App.Vector(3.559669, -3.95333, 0), App.Vector(3.537934, -4.05026, 0), App.Vector(3.523789, -4.151557, 0), App.Vector(3.514162, -4.25663, 0), App.Vector(3.513272, -4.328075, 0), App.Vector(3.512821, -4.364323, 0)], [4, 1, 1, 1, 1, 1, 1, 1, 1, 1, 1, 1, 1, 1, 1, 1, 4], [0, 0.981931301, 1.934503488, 2.87077864, 3.801706999, 4.735015492, 5.667491629, 6.616593066, 7.585388521, 8.561939025, 9.551802639, 10.560317337, 11.588439944, 12.640189604, 13.723962949, 14.845264515, 16], False, 3, [1, 1, 1, 1, 1, 1, 1, 1, 1, 1, 1, 1, 1, 1, 1, 1, 1, 1, 1], False), False)
sketch3.addGeometry(Part.BSplineCurve([App.Vector(5.027945, -3.067949, 0), App.Vector(4.984707, -3.068226, 0), App.Vector(4.901248, -3.068761, 0), App.Vector(4.78057, -3.072611, 0), App.Vector(4.669104, -3.080732, 0), App.Vector(4.566342, -3.089941, 0), App.Vector(4.472759, -3.103188, 0), App.Vector(4.388078, -3.119364, 0), App.Vector(4.312217, -3.1376, 0), App.Vector(4.265492, -3.15362, 0), App.Vector(4.243389, -3.161198, 0)], [4, 1, 1, 1, 1, 1, 1, 1, 4], [0, 1.307562039, 2.523909702, 3.650326591, 4.686913197, 5.643429486, 6.506965704, 7.293745905, 8], False, 3, [1, 1, 1, 1, 1, 1, 1, 1, 1, 1, 1], False), False)
sketch3.addGeometry(Part.LineSegment(App.Vector(5.027945, -3.067949, 0), App.Vector(7.057692, -3.067949, 0)), False)
sketch3.addGeometry(Part.BSplineCurve([App.Vector(5.792869, -3.382051, 0), App.Vector(5.839486, -3.383391, 0), App.Vector(5.930561, -3.386008, 0), App.Vector(6.063268, -3.410705, 0), App.Vector(6.188037, -3.450525, 0), App.Vector(6.304473, -3.506372, 0), App.Vector(6.411342, -3.576354, 0), App.Vector(6.506666, -3.660645, 0), App.Vector(6.590567, -3.757791, 0), App.Vector(6.660465, -3.867513, 0), App.Vector(6.716931, -3.98556, 0), App.Vector(6.759292, -4.109082, 0), App.Vector(6.783287, -4.237893, 0), App.Vector(6.786727, -4.3252, 0), App.Vector(6.788462, -4.369231, 0)], [4, 1, 1, 1, 1, 1, 1, 1, 1, 1, 1, 1, 4], [0, 1.070913519, 2.092188694, 3.091357305, 4.074328408, 5.051968682, 6.018948707, 6.99050112, 7.9935919, 9.000589572, 9.992915277, 10.987769056, 12], False, 3, [1, 1, 1, 1, 1, 1, 1, 1, 1, 1, 1, 1, 1, 1, 1], False), False)
sketch3.addGeometry(Part.BSplineCurve([App.Vector(4.814103, -4.388161, 0), App.Vector(4.81487, -4.351197, 0), App.Vector(4.816371, -4.278915, 0), App.Vector(4.829275, -4.173344, 0), App.Vector(4.850097, -4.073311, 0), App.Vector(4.87966, -3.978909, 0), App.Vector(4.917381, -3.889779, 0), App.Vector(4.965118, -3.806925, 0), App.Vector(5.019483, -3.728568, 0), App.Vector(5.082895, -3.657212, 0), App.Vector(5.15278, -3.592688, 0), App.Vector(5.228824, -3.536457, 0), App.Vector(5.309885, -3.488542, 0), App.Vector(5.395952, -3.448865, 0), App.Vector(5.487694, -3.418573, 0), App.Vector(5.584883, -3.398255, 0), App.Vector(5.687051, -3.384048, 0), App.Vector(5.75706, -3.382727, 0), App.Vector(5.792869, -3.382051, 0)], [4, 1, 1, 1, 1, 1, 1, 1, 1, 1, 1, 1, 1, 1, 1, 1, 4], [0, 1.121943988, 2.193949579, 3.223793937, 4.220241907, 5.192961521, 6.155822191, 7.11847367, 8.083710714, 9.04790392, 10.001595906, 10.949595423, 11.902125208, 12.873731292, 13.87582262, 14.913508608, 16], False, 3, [1, 1, 1, 1, 1, 1, 1, 1, 1, 1, 1, 1, 1, 1, 1, 1, 1, 1, 1], False), False)
sketch3.addGeometry(Part.BSplineCurve([App.Vector(5.774639, -5.401282, 0), App.Vector(5.740706, -5.400556, 0), App.Vector(5.673969, -5.399129, 0), App.Vector(5.576031, -5.385405, 0), App.Vector(5.482751, -5.363224, 0), App.Vector(5.394123, -5.331787, 0), App.Vector(5.309638, -5.292834, 0), App.Vector(5.229879, -5.243842, 0), App.Vector(5.154774, -5.186191, 0), App.Vector(5.084879, -5.120333, 0), App.Vector(5.021218, -5.047756, 0), App.Vector(4.96528, -4.969037, 0), App.Vector(4.91953, -4.884282, 0), App.Vector(4.879989, -4.795575, 0), App.Vector(4.85111, -4.700764, 0), App.Vector(4.829071, -4.601215, 0), App.Vector(4.816462, -4.496224, 0), App.Vector(4.814899, -4.424652, 0), App.Vector(4.814103, -4.388161, 0)], [4, 1, 1, 1, 1, 1, 1, 1, 1, 1, 1, 1, 1, 1, 1, 1, 4], [0, 1.039728707, 2.044842319, 3.024901384, 3.974314358, 4.923051295, 5.871625912, 6.837440708, 7.820715446, 8.810779094, 9.792721783, 10.773906224, 11.758876063, 12.764959493, 13.806266761, 14.881525401, 16], False, 3, [1, 1, 1, 1, 1, 1, 1, 1, 1, 1, 1, 1, 1, 1, 1, 1, 1, 1, 1], False), False)
sketch3.addGeometry(Part.BSplineCurve([App.Vector(6.788462, -4.369231, 0), App.Vector(6.7869, -4.415161, 0), App.Vector(6.78381, -4.506095, 0), App.Vector(6.757425, -4.639383, 0), App.Vector(6.716079, -4.76806, 0), App.Vector(6.656937, -4.889665, 0), App.Vector(6.584842, -5.003572, 0), App.Vector(6.497502, -5.104647, 0), App.Vector(6.397756, -5.193052, 0), App.Vector(6.286506, -5.267835, 0), App.Vector(6.166483, -5.327366, 0), App.Vector(6.039973, -5.36951, 0), App.Vector(5.909018, -5.39676, 0), App.Vector(5.819645, -5.399767, 0), App.Vector(5.774639, -5.401282, 0)], [4, 1, 1, 1, 1, 1, 1, 1, 1, 1, 1, 1, 4], [0, 1.026226791, 2.031711442, 3.026614839, 4.04107745, 5.047145931, 6.032893242, 7.017642609, 8.019221815, 9.021877557, 10.003543541, 10.994637589, 12], False, 3, [1, 1, 1, 1, 1, 1, 1, 1, 1, 1, 1, 1, 1, 1, 1], False), False)
sketch3.addConstraint(Sketcher.Constraint("Block", 3))
sketch3.addConstraint(Sketcher.Constraint("Block", 4))
sketch3.addConstraint(Sketcher.Constraint("Block", 5))
sketch3.addConstraint(Sketcher.Constraint("Block", 6))
sketch3.addConstraint(Sketcher.Constraint("Block", 8))
sketch3.addConstraint(Sketcher.Constraint("Block", 9))
sketch3.addConstraint(Sketcher.Constraint("Block", 10))
sketch3.addConstraint(Sketcher.Constraint("Block", 11))
sketch3.addConstraint(Sketcher.Constraint("Block", 27))
sketch3.addConstraint(Sketcher.Constraint("Block", 28))
sketch3.addConstraint(Sketcher.Constraint("Block", 29))
sketch3.addConstraint(Sketcher.Constraint("Block", 30))
sketch3.addConstraint(Sketcher.Constraint("Block", 32))
sketch3.addConstraint(Sketcher.Constraint("Block", 33))
sketch3.addConstraint(Sketcher.Constraint("Block", 35))
sketch3.addConstraint(Sketcher.Constraint("Block", 36))
sketch3.addConstraint(Sketcher.Constraint("Block", 37))
sketch3.addConstraint(Sketcher.Constraint("Block", 39))
sketch3.addConstraint(Sketcher.Constraint("Block", 40))
sketch3.addConstraint(Sketcher.Constraint("Block", 41))
sketch3.addConstraint(Sketcher.Constraint("Block", 42))
sketch3.addConstraint(Sketcher.Constraint("Coincident", 0, 2, 1, 1))
sketch3.addConstraint(Sketcher.Constraint("Coincident", 1, 2, 2, 1))
sketch3.addConstraint(Sketcher.Constraint("Coincident", 2, 2, 3, 2))
sketch3.addConstraint(Sketcher.Constraint("Coincident", 6, 1, 7, 1))
sketch3.addConstraint(Sketcher.Constraint("Coincident", 7, 2, 8, 2))
sketch3.addConstraint(Sketcher.Constraint("Coincident", 11, 1, 12, 1))
sketch3.addConstraint(Sketcher.Constraint("Coincident", 12, 2, 13, 1))
sketch3.addConstraint(Sketcher.Constraint("Coincident", 13, 2, 0, 1))
sketch3.addConstraint(Sketcher.Constraint("Coincident", 14, 2, 15, 1))
sketch3.addConstraint(Sketcher.Constraint("Coincident", 15, 2, 16, 1))
sketch3.addConstraint(Sketcher.Constraint("Coincident", 16, 2, 17, 1))
sketch3.addConstraint(Sketcher.Constraint("Coincident", 17, 2, 18, 1))
sketch3.addConstraint(Sketcher.Constraint("Coincident", 18, 2, 19, 1))
sketch3.addConstraint(Sketcher.Constraint("Coincident", 19, 2, 20, 1))
sketch3.addConstraint(Sketcher.Constraint("Coincident", 20, 2, 21, 1))
sketch3.addConstraint(Sketcher.Constraint("Coincident", 21, 2, 22, 1))
sketch3.addConstraint(Sketcher.Constraint("Coincident", 22, 2, 23, 1))
sketch3.addConstraint(Sketcher.Constraint("Coincident", 23, 2, 24, 1))
sketch3.addConstraint(Sketcher.Constraint("Coincident", 24, 2, 14, 1))
sketch3.addConstraint(Sketcher.Constraint("Coincident", 25, 2, 26, 1))
sketch3.addConstraint(Sketcher.Constraint("Coincident", 26, 2, 27, 2))
sketch3.addConstraint(Sketcher.Constraint("Coincident", 30, 1, 31, 1))
sketch3.addConstraint(Sketcher.Constraint("Coincident", 31, 2, 32, 2))
sketch3.addConstraint(Sketcher.Constraint("Coincident", 33, 1, 34, 1))
sketch3.addConstraint(Sketcher.Constraint("Coincident", 34, 2, 35, 2))
sketch3.addConstraint(Sketcher.Constraint("Coincident", 37, 1, 38, 1))
sketch3.addConstraint(Sketcher.Constraint("Coincident", 38, 2, 25, 1))
sketch3.addConstraint(Sketcher.Constraint("Horizontal", 0))
sketch3.addConstraint(Sketcher.Constraint("Vertical", 1))
sketch3.addConstraint(Sketcher.Constraint("Vertical", 13))
sketch3.addConstraint(Sketcher.Constraint("Vertical", 14))
sketch3.addConstraint(Sketcher.Constraint("Horizontal", 15))
sketch3.addConstraint(Sketcher.Constraint("Vertical", 16))
sketch3.addConstraint(Sketcher.Constraint("Horizontal", 17))
sketch3.addConstraint(Sketcher.Constraint("Vertical", 19))
sketch3.addConstraint(Sketcher.Constraint("Vertical", 22))
sketch3.addConstraint(Sketcher.Constraint("Horizontal", 24))
sketch3.addConstraint(Sketcher.Constraint("Vertical", 25))
sketch3.addConstraint(Sketcher.Constraint("Horizontal", 26))
sketch3.addConstraint(Sketcher.Constraint("Horizontal", 38))
sketch3.addConstraint(Sketcher.Constraint("Horizontal", 17, 2, 23, 2))
sketch3.addConstraint(Sketcher.Constraint("Vertical", 16, 2, 18, 2))
sketch3.addConstraint(Sketcher.Constraint("Vertical", 22, 2, 25, 2))
sketch3.addConstraint(Sketcher.Constraint("Equal", 7, 14))
sketch3.addConstraint(Sketcher.Constraint("Equal", 19, 22))
sketch3.addConstraint(Sketcher.Constraint("DistanceX", -1, 1, 0, 2, Q("8 mm")))
sketch3.addConstraint(Sketcher.Constraint("DistanceX", -1, 1, 15, 2, Q("4.5 mm")))
sketch3.addConstraint(Sketcher.Constraint("DistanceY", 16, 2, 19, 2, Q("1.75 mm")))
sketch3.addConstraint(Sketcher.Constraint("DistanceY", 22, 2, 25, 2, Q("3.188001 mm")))
sketch3.addConstraint(Sketcher.Constraint("DistanceX", 24, 1, 24, 2, Q("2.075321 mm")))
sketch3.addConstraint(Sketcher.Constraint("DistanceY", 19, 1, 19, 2, Q("0.450821 mm")))
sketch3.addConstraint(Sketcher.Constraint("Distance", 2, Q("1.786439 mm")))
sketch3.addConstraint(Sketcher.Constraint("DistanceX", 0, 1, 0, 2, Q("0.358974 mm")))
sketch3.addConstraint(Sketcher.Constraint("DistanceX", 15, 2, 15, 1, Q("3.589744 mm")))
sketch3.addConstraint(Sketcher.Constraint("DistanceX", 17, 1, 17, 2, Q("1.178586 mm")))
sketch3.addConstraint(Sketcher.Constraint("DistanceX", 26, 2, 26, 1, Q("0.447316 mm")))
sketch3.addConstraint(Sketcher.Constraint("DistanceY", 1, 2, 1, 1, Q("1.435897 mm")))
sketch3.addConstraint(Sketcher.Constraint("DistanceY", 13, 1, 13, 2, Q("1.189804 mm")))
sketch3.addConstraint(Sketcher.Constraint("DistanceY", 20, 2, -1, 1, Q("7.469591 mm")))
sketch3.addConstraint(Sketcher.Constraint("DistanceY", 0, 2, 14, 2, Q("0.717949 mm")))
sketch3.addConstraint(Sketcher.Constraint("DistanceX", 17, 2, 20, 2, Q("0.167568 mm")))
pad2 = doc.addObject("PartDesign::Pad", "Pad001")
body.addObject(pad2)
pad2.Profile = sketch3
pad2.Length = 1
pad2.Reversed = True

doc.recompute()
